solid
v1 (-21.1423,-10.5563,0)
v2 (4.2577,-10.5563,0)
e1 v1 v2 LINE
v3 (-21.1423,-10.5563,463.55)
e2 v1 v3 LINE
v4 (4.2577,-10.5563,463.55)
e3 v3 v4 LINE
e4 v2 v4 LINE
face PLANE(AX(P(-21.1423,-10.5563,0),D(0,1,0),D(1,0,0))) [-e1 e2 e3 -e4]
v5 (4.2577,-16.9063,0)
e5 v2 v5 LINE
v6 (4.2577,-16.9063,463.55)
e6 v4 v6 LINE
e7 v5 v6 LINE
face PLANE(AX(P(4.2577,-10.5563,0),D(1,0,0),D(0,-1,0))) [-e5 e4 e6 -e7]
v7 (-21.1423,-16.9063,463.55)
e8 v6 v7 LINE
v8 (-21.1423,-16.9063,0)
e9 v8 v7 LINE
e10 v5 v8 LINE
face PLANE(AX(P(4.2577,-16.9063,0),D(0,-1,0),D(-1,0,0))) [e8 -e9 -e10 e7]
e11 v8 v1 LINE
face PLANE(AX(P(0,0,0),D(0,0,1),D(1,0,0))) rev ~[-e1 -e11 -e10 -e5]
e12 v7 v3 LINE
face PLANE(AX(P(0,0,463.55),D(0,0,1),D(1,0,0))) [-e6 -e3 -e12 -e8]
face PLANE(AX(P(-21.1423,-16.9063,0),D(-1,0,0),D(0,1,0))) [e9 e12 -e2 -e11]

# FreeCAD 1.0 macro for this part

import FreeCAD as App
import Part
import Sketcher
Q = App.Units.Quantity

doc = App.newDocument("Part")
body = doc.addObject("PartDesign::Body", "Body")

# Sketch on XY plane
sketch1 = doc.addObject("Sketcher::SketchObject", "Sketch")
body.addObject(sketch1)
sketch1.AttachmentSupport = (doc.XY_Plane, [""])
sketch1.MapMode = "FlatFace"
sketch1.addGeometry([
    Part.LineSegment(App.Vector(4.2577, -10.5563, 0), App.Vector(-21.1423, -10.5563, 0)),
    Part.LineSegment(App.Vector(-21.1423, -10.5563, 0), App.Vector(-21.1423, -16.9063, 0)),
    Part.LineSegment(App.Vector(-21.1423, -16.9063, 0), App.Vector(4.2577, -16.9063, 0)),
    Part.LineSegment(App.Vector(4.2577, -16.9063, 0), App.Vector(4.2577, -10.5563, 0)),
], False)
sketch1.addConstraint([
    Sketcher.Constraint("Coincident", 0, 2, 1, 1),
    Sketcher.Constraint("Coincident", 1, 2, 2, 1),
    Sketcher.Constraint("Coincident", 2, 2, 3, 1),
    Sketcher.Constraint("Coincident", 3, 2, 0, 1),
    Sketcher.Constraint("Horizontal", 0),
    Sketcher.Constraint("Vertical", 1),
    Sketcher.Constraint("Horizontal", 2),
    Sketcher.Constraint("Vertical", 3),
    Sketcher.Constraint("DistanceX", 0, 2, 0, 1, Q("1 in")),
    Sketcher.Constraint("DistanceY", 1, 2, 1, 1, Q("0.25 in")),
    Sketcher.Constraint("DistanceY", 0, 2, -1, 1, Q("0.4156 in")),
    Sketcher.Constraint("DistanceX", 0, 2, -1, 1, Q("21.1423 mm")),
])
pad1 = doc.addObject("PartDesign::Pad", "Pad")
body.addObject(pad1)
pad1.Profile = sketch1
pad1.Length = Q("18.25 in")

doc.recompute()
